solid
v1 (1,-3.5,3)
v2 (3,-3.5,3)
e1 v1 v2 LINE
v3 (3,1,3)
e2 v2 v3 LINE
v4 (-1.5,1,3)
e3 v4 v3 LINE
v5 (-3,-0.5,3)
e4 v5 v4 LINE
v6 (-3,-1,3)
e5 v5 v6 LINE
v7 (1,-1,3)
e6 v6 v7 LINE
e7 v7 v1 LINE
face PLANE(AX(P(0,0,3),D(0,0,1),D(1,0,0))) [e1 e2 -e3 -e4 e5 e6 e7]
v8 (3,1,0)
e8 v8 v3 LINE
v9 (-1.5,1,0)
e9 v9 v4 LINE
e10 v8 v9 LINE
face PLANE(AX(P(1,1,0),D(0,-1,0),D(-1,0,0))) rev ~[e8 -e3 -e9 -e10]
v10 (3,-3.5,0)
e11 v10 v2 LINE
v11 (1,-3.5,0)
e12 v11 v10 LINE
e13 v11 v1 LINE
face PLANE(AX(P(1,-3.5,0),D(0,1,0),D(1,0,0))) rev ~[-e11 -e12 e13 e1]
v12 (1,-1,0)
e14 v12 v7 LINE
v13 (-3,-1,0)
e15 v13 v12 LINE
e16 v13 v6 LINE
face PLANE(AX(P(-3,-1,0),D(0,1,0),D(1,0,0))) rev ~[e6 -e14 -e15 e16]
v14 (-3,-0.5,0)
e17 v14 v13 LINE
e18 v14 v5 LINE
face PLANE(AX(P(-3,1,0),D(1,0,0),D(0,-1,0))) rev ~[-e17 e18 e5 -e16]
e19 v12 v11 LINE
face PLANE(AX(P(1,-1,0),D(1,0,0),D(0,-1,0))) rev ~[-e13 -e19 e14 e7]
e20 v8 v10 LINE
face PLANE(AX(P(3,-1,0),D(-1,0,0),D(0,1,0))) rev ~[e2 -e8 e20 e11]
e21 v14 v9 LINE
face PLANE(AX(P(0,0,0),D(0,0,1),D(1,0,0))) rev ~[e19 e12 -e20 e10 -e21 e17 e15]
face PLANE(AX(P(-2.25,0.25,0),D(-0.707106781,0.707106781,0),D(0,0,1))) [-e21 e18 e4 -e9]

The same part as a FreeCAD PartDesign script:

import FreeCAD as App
import Part
import Sketcher
Q = App.Units.Quantity


def edges_at(feature, points):
    """Names of the edges that pass closest to the given points."""
    edges = feature.Shape.Edges
    near = lambda p: min(range(len(edges)), key=lambda i: edges[i].distToShape(Part.Vertex(*p))[0])
    return sorted({f"Edge{near(p) + 1}" for p in points})

doc = App.newDocument("Part")
body = doc.addObject("PartDesign::Body", "Body")

# Sketch on XY plane
sketch1 = body.newObject("Sketcher::SketchObject", "Sketch")
sketch1.AttachmentSupport = (doc.getObject("XY_Plane"), [""])
sketch1.MapMode = "FlatFace"
sketch1.addGeometry([
    Part.LineSegment(App.Vector(-3, 1, 0), App.Vector(-3, -1, 0)),  # 0
    Part.LineSegment(App.Vector(-3, -1, 0), App.Vector(1, -1, 0)),  # 1
    Part.LineSegment(App.Vector(1, -1, 0), App.Vector(1, -3.5, 0)),  # 2
    Part.LineSegment(App.Vector(1, -3.5, 0), App.Vector(3, -3.5, 0)),  # 3
    Part.LineSegment(App.Vector(3, -3.5, 0), App.Vector(3, 1, 0)),  # 4
    Part.LineSegment(App.Vector(3, 1, 0), App.Vector(-3, 1, 0)),  # 5
], False)
sketch1.addConstraint([
    Sketcher.Constraint("Coincident", 0, 2, 1, 1),
    Sketcher.Constraint("Coincident", 1, 2, 2, 1),
    Sketcher.Constraint("Coincident", 2, 2, 3, 1),
    Sketcher.Constraint("Coincident", 3, 2, 4, 1),
    Sketcher.Constraint("Coincident", 4, 2, 5, 1),
    Sketcher.Constraint("Coincident", 5, 2, 0, 1),
    Sketcher.Constraint("Vertical", 0),
    Sketcher.Constraint("Horizontal", 1),
    Sketcher.Constraint("Vertical", 2),
    Sketcher.Constraint("Horizontal", 3),
    Sketcher.Constraint("Vertical", 4),
    Sketcher.Constraint("Horizontal", 5),
    Sketcher.Constraint("Symmetric", 0, 2, 4, 2, -1, 1),
    Sketcher.Constraint("Equal", 3, 0),
    Sketcher.Constraint("DistanceX", 3, 1, 3, 2, Q("2 mm")),
    Sketcher.Constraint("DistanceX", 5, 2, 5, 1, Q("6 mm")),
    Sketcher.Constraint("DistanceY", 4, 1, 4, 2, Q("4.5 mm")),
])
pad1 = body.newObject("PartDesign::Pad", "Pad")
pad1.Profile = sketch1
pad1.Length = 3
doc.recompute()

chamfer = body.newObject("PartDesign::Chamfer", "Chamfer")
chamfer.Base = (pad1, edges_at(pad1, [(-3, 1, 1.5)]))
chamfer.Size = 1.5

doc.recompute()
